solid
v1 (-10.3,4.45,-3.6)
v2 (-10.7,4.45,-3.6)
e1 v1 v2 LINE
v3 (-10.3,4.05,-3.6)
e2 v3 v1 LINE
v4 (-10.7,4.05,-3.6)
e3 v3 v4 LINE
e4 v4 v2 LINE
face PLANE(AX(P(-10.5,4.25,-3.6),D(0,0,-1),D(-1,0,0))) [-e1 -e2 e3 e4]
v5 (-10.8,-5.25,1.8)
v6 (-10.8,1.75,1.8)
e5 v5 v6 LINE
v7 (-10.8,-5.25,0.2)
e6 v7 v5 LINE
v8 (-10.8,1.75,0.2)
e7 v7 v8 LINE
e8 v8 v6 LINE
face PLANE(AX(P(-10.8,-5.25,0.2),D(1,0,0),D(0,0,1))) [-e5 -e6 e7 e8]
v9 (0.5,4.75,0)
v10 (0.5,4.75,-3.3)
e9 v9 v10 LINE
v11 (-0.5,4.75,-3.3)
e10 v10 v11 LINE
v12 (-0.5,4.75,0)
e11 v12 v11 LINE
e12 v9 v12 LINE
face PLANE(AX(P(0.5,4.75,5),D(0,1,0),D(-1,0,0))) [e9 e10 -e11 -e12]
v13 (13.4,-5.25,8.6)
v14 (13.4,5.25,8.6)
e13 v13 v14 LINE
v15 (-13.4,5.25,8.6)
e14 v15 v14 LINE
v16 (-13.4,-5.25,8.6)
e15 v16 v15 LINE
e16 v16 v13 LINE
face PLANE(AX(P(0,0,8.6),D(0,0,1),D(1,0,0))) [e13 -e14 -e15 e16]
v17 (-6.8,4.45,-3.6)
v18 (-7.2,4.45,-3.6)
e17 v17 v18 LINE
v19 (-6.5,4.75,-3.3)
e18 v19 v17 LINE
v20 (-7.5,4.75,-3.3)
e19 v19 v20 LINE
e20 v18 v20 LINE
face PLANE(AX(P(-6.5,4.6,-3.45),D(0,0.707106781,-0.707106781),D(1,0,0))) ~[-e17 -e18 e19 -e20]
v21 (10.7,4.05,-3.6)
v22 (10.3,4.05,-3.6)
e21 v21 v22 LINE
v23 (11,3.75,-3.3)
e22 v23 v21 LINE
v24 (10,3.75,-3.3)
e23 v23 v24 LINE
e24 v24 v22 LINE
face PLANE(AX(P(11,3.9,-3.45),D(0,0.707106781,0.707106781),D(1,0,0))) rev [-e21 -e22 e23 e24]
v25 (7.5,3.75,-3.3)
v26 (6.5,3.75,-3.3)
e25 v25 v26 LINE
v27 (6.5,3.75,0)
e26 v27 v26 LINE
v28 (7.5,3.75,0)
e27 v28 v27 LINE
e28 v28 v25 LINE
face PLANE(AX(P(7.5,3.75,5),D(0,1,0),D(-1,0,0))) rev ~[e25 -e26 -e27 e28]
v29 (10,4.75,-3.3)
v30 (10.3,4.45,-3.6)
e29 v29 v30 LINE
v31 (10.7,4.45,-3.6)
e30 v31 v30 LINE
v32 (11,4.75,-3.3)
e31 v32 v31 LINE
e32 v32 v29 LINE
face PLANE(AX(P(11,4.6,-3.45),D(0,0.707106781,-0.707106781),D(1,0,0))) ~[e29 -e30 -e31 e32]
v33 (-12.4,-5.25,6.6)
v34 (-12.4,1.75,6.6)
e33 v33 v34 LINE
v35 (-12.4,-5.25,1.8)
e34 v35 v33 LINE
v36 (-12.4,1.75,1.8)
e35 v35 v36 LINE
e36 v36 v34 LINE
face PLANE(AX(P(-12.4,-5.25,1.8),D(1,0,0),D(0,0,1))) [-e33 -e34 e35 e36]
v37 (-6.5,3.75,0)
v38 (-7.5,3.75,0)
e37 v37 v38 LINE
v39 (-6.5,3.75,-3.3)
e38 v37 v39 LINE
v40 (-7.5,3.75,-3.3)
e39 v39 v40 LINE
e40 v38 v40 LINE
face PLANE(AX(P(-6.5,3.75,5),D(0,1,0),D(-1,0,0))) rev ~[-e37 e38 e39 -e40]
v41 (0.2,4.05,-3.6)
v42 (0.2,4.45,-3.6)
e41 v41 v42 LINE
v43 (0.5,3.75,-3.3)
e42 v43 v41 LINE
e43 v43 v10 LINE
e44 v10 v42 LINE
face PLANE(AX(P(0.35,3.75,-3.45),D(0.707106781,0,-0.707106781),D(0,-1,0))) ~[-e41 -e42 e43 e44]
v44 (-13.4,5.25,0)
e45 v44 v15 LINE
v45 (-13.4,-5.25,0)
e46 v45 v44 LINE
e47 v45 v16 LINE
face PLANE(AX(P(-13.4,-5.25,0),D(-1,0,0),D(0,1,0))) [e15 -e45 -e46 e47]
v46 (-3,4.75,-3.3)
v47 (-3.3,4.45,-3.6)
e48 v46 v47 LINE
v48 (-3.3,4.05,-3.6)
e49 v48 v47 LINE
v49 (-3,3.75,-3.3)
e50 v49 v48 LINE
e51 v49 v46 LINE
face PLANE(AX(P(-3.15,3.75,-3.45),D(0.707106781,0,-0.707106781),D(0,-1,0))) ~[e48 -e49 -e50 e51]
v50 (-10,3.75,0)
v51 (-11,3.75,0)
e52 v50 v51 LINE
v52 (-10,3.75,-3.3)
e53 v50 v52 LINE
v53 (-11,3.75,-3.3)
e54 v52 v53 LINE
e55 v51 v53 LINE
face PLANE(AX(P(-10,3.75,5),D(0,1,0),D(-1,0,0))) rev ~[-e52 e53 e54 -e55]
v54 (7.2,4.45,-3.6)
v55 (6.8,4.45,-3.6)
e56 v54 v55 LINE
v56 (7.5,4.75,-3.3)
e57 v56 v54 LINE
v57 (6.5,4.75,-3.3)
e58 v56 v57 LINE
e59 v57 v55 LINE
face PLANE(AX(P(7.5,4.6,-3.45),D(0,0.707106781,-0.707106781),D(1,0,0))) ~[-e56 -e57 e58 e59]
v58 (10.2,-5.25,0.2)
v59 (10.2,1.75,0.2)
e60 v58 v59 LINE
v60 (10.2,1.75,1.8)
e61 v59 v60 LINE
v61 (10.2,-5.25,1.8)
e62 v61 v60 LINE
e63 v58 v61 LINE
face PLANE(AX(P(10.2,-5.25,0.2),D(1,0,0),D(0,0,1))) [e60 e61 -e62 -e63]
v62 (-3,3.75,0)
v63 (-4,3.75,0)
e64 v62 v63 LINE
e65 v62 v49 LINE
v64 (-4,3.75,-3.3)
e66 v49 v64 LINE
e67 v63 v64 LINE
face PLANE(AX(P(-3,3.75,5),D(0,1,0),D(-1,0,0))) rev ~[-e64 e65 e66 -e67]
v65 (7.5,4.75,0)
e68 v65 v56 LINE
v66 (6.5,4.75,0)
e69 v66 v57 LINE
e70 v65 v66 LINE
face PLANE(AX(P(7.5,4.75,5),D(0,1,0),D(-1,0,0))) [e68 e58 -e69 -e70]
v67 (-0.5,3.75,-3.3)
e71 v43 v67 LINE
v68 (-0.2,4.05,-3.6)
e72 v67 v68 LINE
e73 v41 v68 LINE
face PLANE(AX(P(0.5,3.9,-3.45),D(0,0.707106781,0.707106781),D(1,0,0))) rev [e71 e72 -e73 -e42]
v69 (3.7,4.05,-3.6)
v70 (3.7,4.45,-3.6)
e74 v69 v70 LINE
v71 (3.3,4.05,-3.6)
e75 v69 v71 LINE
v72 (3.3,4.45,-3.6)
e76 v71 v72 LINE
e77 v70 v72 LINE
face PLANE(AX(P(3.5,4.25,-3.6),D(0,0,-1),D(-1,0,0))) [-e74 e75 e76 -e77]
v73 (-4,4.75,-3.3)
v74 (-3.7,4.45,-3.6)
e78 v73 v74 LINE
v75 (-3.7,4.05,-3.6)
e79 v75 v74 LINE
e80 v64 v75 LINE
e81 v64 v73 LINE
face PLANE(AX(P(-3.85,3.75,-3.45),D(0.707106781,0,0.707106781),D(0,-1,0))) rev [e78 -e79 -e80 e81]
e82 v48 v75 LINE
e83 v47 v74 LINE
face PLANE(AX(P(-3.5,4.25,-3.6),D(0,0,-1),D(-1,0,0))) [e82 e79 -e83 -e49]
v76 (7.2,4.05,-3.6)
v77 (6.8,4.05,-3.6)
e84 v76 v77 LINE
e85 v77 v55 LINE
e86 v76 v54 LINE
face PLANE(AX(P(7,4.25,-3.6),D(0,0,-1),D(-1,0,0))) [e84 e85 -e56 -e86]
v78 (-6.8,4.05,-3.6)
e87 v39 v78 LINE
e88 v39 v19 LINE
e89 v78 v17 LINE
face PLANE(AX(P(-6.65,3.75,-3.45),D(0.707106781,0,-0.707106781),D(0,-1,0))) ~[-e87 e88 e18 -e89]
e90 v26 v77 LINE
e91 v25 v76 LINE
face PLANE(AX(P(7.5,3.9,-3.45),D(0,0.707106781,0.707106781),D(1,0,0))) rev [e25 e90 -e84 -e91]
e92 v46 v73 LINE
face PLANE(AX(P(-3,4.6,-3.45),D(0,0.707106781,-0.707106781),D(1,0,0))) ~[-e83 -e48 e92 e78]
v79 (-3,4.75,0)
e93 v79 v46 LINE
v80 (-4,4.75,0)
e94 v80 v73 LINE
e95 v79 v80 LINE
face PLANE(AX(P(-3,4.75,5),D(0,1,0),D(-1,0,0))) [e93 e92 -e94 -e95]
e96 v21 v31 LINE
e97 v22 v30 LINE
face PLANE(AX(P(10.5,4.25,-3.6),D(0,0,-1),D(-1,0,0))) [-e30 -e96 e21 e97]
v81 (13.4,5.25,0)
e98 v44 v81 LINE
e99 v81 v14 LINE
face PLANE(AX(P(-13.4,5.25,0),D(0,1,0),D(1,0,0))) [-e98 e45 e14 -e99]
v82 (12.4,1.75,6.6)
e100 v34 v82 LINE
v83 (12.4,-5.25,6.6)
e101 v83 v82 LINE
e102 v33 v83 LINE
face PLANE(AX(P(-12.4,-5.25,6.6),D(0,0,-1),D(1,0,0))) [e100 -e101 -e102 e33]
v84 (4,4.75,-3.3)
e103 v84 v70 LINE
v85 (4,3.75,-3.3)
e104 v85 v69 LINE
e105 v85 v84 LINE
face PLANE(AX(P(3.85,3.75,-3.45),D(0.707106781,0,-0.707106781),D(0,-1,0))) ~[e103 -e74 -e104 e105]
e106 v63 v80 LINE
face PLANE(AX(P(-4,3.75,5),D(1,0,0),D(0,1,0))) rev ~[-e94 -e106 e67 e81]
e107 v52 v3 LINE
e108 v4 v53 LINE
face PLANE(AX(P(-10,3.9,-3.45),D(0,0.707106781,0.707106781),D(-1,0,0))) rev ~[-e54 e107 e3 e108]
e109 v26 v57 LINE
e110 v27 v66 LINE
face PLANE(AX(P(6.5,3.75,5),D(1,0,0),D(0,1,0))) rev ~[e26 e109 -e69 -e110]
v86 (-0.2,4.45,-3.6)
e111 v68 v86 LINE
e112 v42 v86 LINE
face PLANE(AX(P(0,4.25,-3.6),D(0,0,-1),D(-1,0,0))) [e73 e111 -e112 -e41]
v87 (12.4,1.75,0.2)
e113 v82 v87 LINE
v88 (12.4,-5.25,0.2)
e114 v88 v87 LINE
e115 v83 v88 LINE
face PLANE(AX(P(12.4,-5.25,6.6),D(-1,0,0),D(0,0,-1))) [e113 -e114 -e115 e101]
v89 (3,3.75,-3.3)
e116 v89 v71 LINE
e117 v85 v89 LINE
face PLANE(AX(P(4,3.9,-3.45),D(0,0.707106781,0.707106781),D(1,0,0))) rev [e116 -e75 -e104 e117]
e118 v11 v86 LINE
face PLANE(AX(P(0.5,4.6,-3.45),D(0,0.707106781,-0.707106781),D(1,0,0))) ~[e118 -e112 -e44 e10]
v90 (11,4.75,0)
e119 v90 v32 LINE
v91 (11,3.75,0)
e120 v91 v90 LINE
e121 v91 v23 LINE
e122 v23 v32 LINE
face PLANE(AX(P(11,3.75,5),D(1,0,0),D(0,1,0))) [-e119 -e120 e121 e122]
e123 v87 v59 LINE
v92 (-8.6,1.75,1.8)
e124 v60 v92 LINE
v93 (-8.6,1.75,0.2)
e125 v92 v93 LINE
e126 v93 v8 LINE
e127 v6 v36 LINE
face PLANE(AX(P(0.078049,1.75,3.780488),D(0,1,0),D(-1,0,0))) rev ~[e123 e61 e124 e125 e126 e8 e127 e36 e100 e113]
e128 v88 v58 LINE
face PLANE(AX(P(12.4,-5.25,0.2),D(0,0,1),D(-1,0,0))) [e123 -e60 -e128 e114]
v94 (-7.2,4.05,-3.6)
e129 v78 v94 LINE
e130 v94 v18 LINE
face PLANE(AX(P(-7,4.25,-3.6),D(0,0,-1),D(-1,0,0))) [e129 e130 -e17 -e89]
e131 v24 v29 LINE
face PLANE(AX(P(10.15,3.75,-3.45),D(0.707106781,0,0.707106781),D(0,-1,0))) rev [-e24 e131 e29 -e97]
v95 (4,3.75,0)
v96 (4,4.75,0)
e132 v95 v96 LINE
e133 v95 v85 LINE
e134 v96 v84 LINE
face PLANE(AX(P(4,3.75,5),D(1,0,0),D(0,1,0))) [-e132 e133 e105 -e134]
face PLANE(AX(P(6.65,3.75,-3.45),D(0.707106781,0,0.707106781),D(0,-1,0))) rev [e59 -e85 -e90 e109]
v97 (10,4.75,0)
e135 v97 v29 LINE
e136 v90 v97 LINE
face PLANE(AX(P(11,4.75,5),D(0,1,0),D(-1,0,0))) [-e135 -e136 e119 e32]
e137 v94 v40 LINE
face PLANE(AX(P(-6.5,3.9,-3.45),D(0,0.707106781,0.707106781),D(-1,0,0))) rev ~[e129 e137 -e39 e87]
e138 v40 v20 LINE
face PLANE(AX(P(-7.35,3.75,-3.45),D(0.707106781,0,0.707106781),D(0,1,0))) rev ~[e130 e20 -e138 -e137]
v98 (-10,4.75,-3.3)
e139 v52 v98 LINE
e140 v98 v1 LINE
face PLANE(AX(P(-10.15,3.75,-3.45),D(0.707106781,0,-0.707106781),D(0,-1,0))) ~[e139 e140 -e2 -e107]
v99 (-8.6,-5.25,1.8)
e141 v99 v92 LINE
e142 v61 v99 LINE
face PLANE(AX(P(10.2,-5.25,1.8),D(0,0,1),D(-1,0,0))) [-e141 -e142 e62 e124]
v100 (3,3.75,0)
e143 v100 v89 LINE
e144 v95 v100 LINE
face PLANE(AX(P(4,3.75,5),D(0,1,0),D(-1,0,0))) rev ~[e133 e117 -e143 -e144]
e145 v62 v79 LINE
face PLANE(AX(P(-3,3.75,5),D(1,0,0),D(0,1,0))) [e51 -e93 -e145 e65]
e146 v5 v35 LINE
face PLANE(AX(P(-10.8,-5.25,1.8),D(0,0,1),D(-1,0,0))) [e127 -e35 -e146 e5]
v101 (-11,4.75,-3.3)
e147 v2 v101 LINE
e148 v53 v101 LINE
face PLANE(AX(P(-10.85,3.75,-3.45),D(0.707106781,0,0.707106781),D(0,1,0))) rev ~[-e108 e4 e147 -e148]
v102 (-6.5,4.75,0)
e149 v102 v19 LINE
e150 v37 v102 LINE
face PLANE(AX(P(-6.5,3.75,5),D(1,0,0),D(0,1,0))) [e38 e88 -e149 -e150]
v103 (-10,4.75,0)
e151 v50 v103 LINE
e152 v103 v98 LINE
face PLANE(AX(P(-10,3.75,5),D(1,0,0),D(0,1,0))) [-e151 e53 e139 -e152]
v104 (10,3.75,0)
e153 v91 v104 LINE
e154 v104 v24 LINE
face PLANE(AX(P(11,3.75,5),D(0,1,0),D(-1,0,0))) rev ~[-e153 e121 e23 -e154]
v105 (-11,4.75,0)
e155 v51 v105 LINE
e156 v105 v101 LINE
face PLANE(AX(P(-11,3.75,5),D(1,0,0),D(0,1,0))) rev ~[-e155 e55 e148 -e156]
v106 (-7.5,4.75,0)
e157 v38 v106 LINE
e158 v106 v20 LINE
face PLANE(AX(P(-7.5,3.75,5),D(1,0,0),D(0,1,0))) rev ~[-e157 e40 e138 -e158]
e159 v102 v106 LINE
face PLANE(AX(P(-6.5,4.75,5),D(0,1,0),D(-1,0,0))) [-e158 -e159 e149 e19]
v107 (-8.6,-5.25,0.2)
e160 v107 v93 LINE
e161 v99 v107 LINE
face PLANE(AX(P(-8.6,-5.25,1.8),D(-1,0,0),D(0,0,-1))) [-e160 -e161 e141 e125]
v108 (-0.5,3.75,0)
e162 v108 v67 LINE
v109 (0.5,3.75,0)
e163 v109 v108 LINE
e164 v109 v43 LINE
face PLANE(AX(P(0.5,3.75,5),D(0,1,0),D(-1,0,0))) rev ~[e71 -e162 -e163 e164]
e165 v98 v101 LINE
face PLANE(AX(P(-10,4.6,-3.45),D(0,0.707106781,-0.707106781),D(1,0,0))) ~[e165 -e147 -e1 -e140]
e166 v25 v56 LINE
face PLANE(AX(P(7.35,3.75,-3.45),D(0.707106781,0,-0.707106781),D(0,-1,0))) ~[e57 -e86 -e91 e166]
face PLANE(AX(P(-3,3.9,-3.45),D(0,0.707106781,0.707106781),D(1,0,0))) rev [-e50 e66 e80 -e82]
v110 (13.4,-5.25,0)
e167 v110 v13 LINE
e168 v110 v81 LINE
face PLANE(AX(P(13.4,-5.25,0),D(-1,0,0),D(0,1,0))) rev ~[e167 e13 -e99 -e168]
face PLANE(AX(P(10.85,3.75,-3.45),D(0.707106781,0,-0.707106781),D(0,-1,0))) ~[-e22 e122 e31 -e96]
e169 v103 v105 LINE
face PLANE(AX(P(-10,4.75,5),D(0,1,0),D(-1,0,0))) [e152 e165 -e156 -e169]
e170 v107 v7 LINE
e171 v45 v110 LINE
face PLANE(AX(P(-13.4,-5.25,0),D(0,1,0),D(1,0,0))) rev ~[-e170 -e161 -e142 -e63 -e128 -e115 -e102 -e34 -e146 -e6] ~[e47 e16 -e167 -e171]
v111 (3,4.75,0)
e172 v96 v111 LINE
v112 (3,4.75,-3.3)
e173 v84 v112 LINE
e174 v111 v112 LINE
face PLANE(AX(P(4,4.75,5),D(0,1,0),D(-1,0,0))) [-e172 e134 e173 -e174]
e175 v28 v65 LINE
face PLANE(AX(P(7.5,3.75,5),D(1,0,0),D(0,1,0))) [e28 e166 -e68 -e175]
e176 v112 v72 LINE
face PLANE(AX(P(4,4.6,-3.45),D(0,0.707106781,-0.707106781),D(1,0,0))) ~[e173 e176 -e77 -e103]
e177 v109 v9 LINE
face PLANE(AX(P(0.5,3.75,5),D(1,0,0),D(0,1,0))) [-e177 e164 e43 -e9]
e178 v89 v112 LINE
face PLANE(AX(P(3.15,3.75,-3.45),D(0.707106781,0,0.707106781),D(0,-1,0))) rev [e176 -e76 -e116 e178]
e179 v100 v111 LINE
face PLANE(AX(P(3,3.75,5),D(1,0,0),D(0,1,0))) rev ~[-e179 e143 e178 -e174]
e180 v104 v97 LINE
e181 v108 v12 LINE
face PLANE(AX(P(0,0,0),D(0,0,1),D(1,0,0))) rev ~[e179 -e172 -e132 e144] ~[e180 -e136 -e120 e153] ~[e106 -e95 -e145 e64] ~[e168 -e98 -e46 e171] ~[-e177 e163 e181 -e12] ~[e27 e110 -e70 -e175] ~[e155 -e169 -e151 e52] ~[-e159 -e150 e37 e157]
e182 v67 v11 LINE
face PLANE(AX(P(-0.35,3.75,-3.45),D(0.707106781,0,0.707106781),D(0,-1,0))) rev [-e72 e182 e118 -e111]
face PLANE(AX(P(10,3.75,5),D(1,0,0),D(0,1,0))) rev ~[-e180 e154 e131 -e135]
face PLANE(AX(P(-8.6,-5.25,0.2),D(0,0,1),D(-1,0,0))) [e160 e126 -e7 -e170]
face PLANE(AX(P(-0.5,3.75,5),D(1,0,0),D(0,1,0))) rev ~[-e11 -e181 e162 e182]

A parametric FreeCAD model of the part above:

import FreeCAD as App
import Part
import Sketcher

V = App.Vector
Q = App.Units.Quantity


def edges_at(feature, points):
    """Names of the edges that pass closest to the given points."""
    edges = feature.Shape.Edges
    near = lambda p: min(range(len(edges)), key=lambda i: edges[i].distToShape(Part.Vertex(*p))[0])
    return sorted({f"Edge{near(p) + 1}" for p in points})

doc = App.newDocument("Part")
params = doc.addObject("Spreadsheet::Sheet", "Params")
for row, (alias, value) in enumerate([
    ("sketch1_width", "26.8 mm"),
    ("sketch1_height", "10.5 mm"),
    ("pad1_length", "8.6 mm"),
    ("sketch2_width", "24.8 mm"),
    ("sketch2_width2", "1.6 mm"),
    ("sketch2_width3", "2.2 mm"),
    ("sketch2_height", "4.8 mm"),
    ("pocket1_length", "7 mm"),
    ("sketch3_width", "1 mm"),
    ("pad2_length", "8.6 mm"),
    ("chamfer_size", "0.3 mm"),
    ("linearpattern_pitch", "3.5 mm"),
    ("chamfer2_size", "0.3 mm"),
], start=1):
    params.set(f"A{row}", alias)
    params.set(f"B{row}", "=" + value)
    params.setAlias(f"B{row}", alias)

body = doc.addObject("PartDesign::Body", "Body")

sketch1 = body.newObject("Sketcher::SketchObject", "Sketch")
sketch1.AttachmentSupport = (doc.getObject("XY_Plane"), [""])
sketch1.MapMode = "FlatFace"
sketch1.addGeometry(Part.LineSegment(V(-13.4, 5.25, 0), V(-13.4, -5.25, 0)), False)
sketch1.addGeometry(Part.LineSegment(V(-13.4, -5.25, 0), V(13.4, -5.25, 0)), False)
sketch1.addGeometry(Part.LineSegment(V(13.4, -5.25, 0), V(13.4, 5.25, 0)), False)
sketch1.addGeometry(Part.LineSegment(V(13.4, 5.25, 0), V(-13.4, 5.25, 0)), False)
sketch1.addConstraint(Sketcher.Constraint("Coincident", 0, 2, 1, 1))
sketch1.addConstraint(Sketcher.Constraint("Coincident", 1, 2, 2, 1))
sketch1.addConstraint(Sketcher.Constraint("Coincident", 2, 2, 3, 1))
sketch1.addConstraint(Sketcher.Constraint("Coincident", 3, 2, 0, 1))
sketch1.addConstraint(Sketcher.Constraint("Vertical", 0))
sketch1.addConstraint(Sketcher.Constraint("Horizontal", 1))
sketch1.addConstraint(Sketcher.Constraint("Vertical", 2))
sketch1.addConstraint(Sketcher.Constraint("Horizontal", 3))
sketch1.addConstraint(Sketcher.Constraint("Symmetric", 0, 2, 2, 2, -1, 1))
sketch1.addConstraint(Sketcher.Constraint("DistanceX", 1, 1, 1, 2, Q("26.8 mm")))
sketch1.addConstraint(Sketcher.Constraint("DistanceY", 0, 2, 0, 1, Q("10.5 mm")))
sketch1.setExpression("Constraints[9]", "Params.sketch1_width")
sketch1.setExpression("Constraints[10]", "Params.sketch1_height")
pad1 = body.newObject("PartDesign::Pad", "Pad")
pad1.Profile = sketch1
pad1.setExpression("Length", "Params.pad1_length")

sketch2 = body.newObject("Sketcher::SketchObject", "Sketch001")
sketch2.AttachmentSupport = (doc.getObject("XZ_Plane"), [""])
sketch2.MapMode = "FlatFace"
sketch2.AttachmentOffset = App.Placement(V(0, 0, 5.25), App.Rotation())
sketch2.addGeometry(Part.LineSegment(V(12.4, 6.6, 0), V(-12.4, 6.6, 0)), False)
sketch2.addGeometry(Part.LineSegment(V(-12.4, 6.6, 0), V(-12.4, 1.8, 0)), False)
sketch2.addGeometry(Part.LineSegment(V(-12.4, 1.8, 0), V(-10.8, 1.8, 0)), False)
sketch2.addGeometry(Part.LineSegment(V(-10.8, 1.8, 0), V(-10.8, 0.2, 0)), False)
sketch2.addGeometry(Part.LineSegment(V(-10.8, 0.2, 0), V(-8.6, 0.2, 0)), False)
sketch2.addGeometry(Part.LineSegment(V(-8.6, 0.2, 0), V(-8.6, 1.8, 0)), False)
sketch2.addGeometry(Part.LineSegment(V(-8.6, 1.8, 0), V(10.2, 1.8, 0)), False)
sketch2.addGeometry(Part.LineSegment(V(10.2, 1.8, 0), V(10.2, 0.2, 0)), False)
sketch2.addGeometry(Part.LineSegment(V(10.2, 0.2, 0), V(12.4, 0.2, 0)), False)
sketch2.addGeometry(Part.LineSegment(V(12.4, 0.2, 0), V(12.4, 6.6, 0)), False)
sketch2.addConstraint(Sketcher.Constraint("Coincident", 0, 2, 1, 1))
sketch2.addConstraint(Sketcher.Constraint("Coincident", 1, 2, 2, 1))
sketch2.addConstraint(Sketcher.Constraint("Coincident", 2, 2, 3, 1))
sketch2.addConstraint(Sketcher.Constraint("Coincident", 3, 2, 4, 1))
sketch2.addConstraint(Sketcher.Constraint("Coincident", 4, 2, 5, 1))
sketch2.addConstraint(Sketcher.Constraint("Coincident", 5, 2, 6, 1))
sketch2.addConstraint(Sketcher.Constraint("Coincident", 6, 2, 7, 1))
sketch2.addConstraint(Sketcher.Constraint("Coincident", 7, 2, 8, 1))
sketch2.addConstraint(Sketcher.Constraint("Coincident", 8, 2, 9, 1))
sketch2.addConstraint(Sketcher.Constraint("Coincident", 9, 2, 0, 1))
sketch2.addConstraint(Sketcher.Constraint("Horizontal", 0))
sketch2.addConstraint(Sketcher.Constraint("Vertical", 1))
sketch2.addConstraint(Sketcher.Constraint("Horizontal", 2))
sketch2.addConstraint(Sketcher.Constraint("Vertical", 3))
sketch2.addConstraint(Sketcher.Constraint("Horizontal", 4))
sketch2.addConstraint(Sketcher.Constraint("Vertical", 5))
sketch2.addConstraint(Sketcher.Constraint("Horizontal", 6))
sketch2.addConstraint(Sketcher.Constraint("Vertical", 7))
sketch2.addConstraint(Sketcher.Constraint("Horizontal", 8))
sketch2.addConstraint(Sketcher.Constraint("Vertical", 9))
sketch2.addConstraint(Sketcher.Constraint("Horizontal", 2, 2, 5, 2))
sketch2.addConstraint(Sketcher.Constraint("Horizontal", 4, 2, 7, 2))
sketch2.addConstraint(Sketcher.Constraint("Equal", 4, 8))
sketch2.addConstraint(Sketcher.Constraint("Equal", 2, 3))
sketch2.addConstraint(Sketcher.Constraint("DistanceX", 0, 2, 0, 1, Q("24.8 mm")))
sketch2.addConstraint(Sketcher.Constraint("DistanceX", 2, 1, 2, 2, Q("1.6 mm")))
sketch2.addConstraint(Sketcher.Constraint("DistanceX", 4, 1, 4, 2, Q("2.2 mm")))
sketch2.addConstraint(Sketcher.Constraint("DistanceY", 1, 2, 1, 1, Q("4.8 mm")))
sketch2.addConstraint(Sketcher.Constraint("DistanceX", 0, 2, -1, 1, Q("12.4 mm")))
sketch2.addConstraint(Sketcher.Constraint("DistanceY", -1, 1, 0, 2, Q("6.6 mm")))
sketch2.setExpression("Constraints[24]", "Params.sketch2_width")
sketch2.setExpression("Constraints[25]", "Params.sketch2_width2")
sketch2.setExpression("Constraints[26]", "Params.sketch2_width3")
sketch2.setExpression("Constraints[27]", "Params.sketch2_height")
pocket1 = body.newObject("PartDesign::Pocket", "Pocket")
pocket1.Profile = sketch2
pocket1.setExpression("Length", "Params.pocket1_length")

sketch3 = body.newObject("Sketcher::SketchObject", "Sketch002")
sketch3.AttachmentSupport = (doc.getObject("XY_Plane"), [""])
sketch3.MapMode = "FlatFace"
sketch3.AttachmentOffset = App.Placement(V(0, 0, 5), App.Rotation())
sketch3.addGeometry(Part.LineSegment(V(-10, 4.75, 0), V(-10, 3.75, 0)), False)
sketch3.addGeometry(Part.LineSegment(V(-10, 3.75, 0), V(-11, 3.75, 0)), False)
sketch3.addGeometry(Part.LineSegment(V(-11, 3.75, 0), V(-11, 4.75, 0)), False)
sketch3.addGeometry(Part.LineSegment(V(-11, 4.75, 0), V(-10, 4.75, 0)), False)
sketch3.addConstraint(Sketcher.Constraint("Coincident", 0, 2, 1, 1))
sketch3.addConstraint(Sketcher.Constraint("Coincident", 1, 2, 2, 1))
sketch3.addConstraint(Sketcher.Constraint("Coincident", 2, 2, 3, 1))
sketch3.addConstraint(Sketcher.Constraint("Coincident", 3, 2, 0, 1))
sketch3.addConstraint(Sketcher.Constraint("Vertical", 0))
sketch3.addConstraint(Sketcher.Constraint("Horizontal", 1))
sketch3.addConstraint(Sketcher.Constraint("Vertical", 2))
sketch3.addConstraint(Sketcher.Constraint("Horizontal", 3))
sketch3.addConstraint(Sketcher.Constraint("Equal", 3, 0))
sketch3.addConstraint(Sketcher.Constraint("DistanceX", 1, 2, 1, 1, Q("1 mm")))
sketch3.addConstraint(Sketcher.Constraint("DistanceX", 0, 2, -1, 1, Q("10 mm")))
sketch3.addConstraint(Sketcher.Constraint("DistanceY", -1, 1, 0, 2, Q("3.75 mm")))
sketch3.setExpression("Constraints[9]", "Params.sketch3_width")
pad2 = body.newObject("PartDesign::Pad", "Pad001")
pad2.Profile = sketch3
pad2.setExpression("Length", "Params.pad2_length")
pad2.Reversed = True
doc.recompute()

chamfer = body.newObject("PartDesign::Chamfer", "Chamfer")
chamfer.Base = (pad2, edges_at(pad2, [
    (-10, 4.25, -3.6),
    (-10.5, 3.75, -3.6),
    (-11, 4.25, -3.6),
    (-10.5, 4.75, -3.6),
]))
chamfer.setExpression("Size", "Params.chamfer_size")
doc.recompute()

linearpattern = body.newObject("PartDesign::LinearPattern", "LinearPattern")
linearpattern.Originals = [pad2]
linearpattern.Direction = (doc.getObject("X_Axis"), [""])
linearpattern.Mode = "offset"
linearpattern.setExpression("Offset", "Params.linearpattern_pitch")
linearpattern.Occurrences = 7
body.Tip = linearpattern
doc.recompute()

chamfer2 = body.newObject("PartDesign::Chamfer", "Chamfer001")
chamfer2.Base = (linearpattern, edges_at(linearpattern, [
    (-6.5, 4.25, -3.6),
    (-7, 3.75, -3.6),
    (-7.5, 4.25, -3.6),
    (-7, 4.75, -3.6),
    (-3, 4.25, -3.6),
    (-3.5, 3.75, -3.6),
    (-4, 4.25, -3.6),
    (-3.5, 4.75, -3.6),
    (0.5, 4.25, -3.6),
    (0, 3.75, -3.6),
    (-0.5, 4.25, -3.6),
    (0, 4.75, -3.6),
    (4, 4.25, -3.6),
    (3.5, 3.75, -3.6),
    (3, 4.25, -3.6),
    (3.5, 4.75, -3.6),
    (7.5, 4.25, -3.6),
    (7, 3.75, -3.6),
    (6.5, 4.25, -3.6),
    (7, 4.75, -3.6),
    (11, 4.25, -3.6),
    (10.5, 3.75, -3.6),
    (10, 4.25, -3.6),
    (10.5, 4.75, -3.6),
]))
chamfer2.setExpression("Size", "Params.chamfer2_size")

doc.recompute()
